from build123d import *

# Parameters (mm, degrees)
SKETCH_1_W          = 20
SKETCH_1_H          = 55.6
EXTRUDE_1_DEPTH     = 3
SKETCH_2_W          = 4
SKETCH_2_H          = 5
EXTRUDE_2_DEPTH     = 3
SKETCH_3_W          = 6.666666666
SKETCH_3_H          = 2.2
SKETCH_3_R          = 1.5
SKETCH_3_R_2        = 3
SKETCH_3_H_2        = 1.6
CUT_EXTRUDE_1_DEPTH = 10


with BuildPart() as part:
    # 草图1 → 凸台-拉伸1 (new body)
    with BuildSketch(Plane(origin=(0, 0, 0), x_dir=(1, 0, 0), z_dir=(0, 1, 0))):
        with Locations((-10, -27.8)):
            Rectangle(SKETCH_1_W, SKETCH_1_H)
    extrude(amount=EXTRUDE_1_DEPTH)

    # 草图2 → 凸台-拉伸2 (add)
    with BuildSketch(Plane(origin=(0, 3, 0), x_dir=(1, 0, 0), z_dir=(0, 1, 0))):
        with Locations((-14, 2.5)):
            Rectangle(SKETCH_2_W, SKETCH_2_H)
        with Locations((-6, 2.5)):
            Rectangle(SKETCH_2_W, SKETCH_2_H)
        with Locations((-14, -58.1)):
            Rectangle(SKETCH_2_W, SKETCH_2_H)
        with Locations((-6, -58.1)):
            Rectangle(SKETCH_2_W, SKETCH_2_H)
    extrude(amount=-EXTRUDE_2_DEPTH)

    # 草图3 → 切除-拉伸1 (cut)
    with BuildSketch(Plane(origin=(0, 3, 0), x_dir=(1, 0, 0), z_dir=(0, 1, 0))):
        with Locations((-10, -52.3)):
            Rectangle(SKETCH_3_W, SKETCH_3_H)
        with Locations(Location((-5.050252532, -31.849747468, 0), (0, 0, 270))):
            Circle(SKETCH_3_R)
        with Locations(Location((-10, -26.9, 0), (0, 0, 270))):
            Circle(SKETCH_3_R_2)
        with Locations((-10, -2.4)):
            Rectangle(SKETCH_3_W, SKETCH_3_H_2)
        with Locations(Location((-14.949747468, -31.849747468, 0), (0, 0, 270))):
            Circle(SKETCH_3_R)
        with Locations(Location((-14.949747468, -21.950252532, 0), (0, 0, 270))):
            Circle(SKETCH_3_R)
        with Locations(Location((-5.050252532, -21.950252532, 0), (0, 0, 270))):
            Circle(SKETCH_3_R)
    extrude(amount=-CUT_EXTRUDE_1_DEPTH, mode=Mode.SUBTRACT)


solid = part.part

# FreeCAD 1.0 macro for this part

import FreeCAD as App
import Part
import Sketcher


def add_polygon(sketch, points):
    """Adds a closed chain of lines whose ends are joined by coincident constraints."""
    first, n = sketch.GeometryCount, len(points)
    for a, b in zip(points, points[1:] + points[:1]):
        sketch.addGeometry(Part.LineSegment(App.Vector(*a, 0), App.Vector(*b, 0)), False)
    for i in range(n):
        sketch.addConstraint(Sketcher.Constraint("Coincident", first + i, 2, first + (i + 1) % n, 1))

doc = App.newDocument("Part")
body = doc.addObject("PartDesign::Body", "Body")

# Sketch on XZ plane
sketch1 = doc.addObject("Sketcher::SketchObject", "Sketch")
body.addObject(sketch1)
sketch1.AttachmentSupport = (doc.XZ_Plane, [""])
sketch1.MapMode = "FlatFace"
add_polygon(sketch1, [(-20, 0), (-20, 56), (0, 56), (0, 0)])  # lines 0-3
sketch1.addConstraint(Sketcher.Constraint("Vertical", 0))
sketch1.addConstraint(Sketcher.Constraint("Horizontal", 1))
sketch1.addConstraint(Sketcher.Constraint("Vertical", 2))
sketch1.addConstraint(Sketcher.Constraint("Horizontal", 3))
sketch1.addConstraint(Sketcher.Constraint("Coincident", 2, 2, -1, 1))
sketch1.addConstraint(Sketcher.Constraint("DistanceX", 1, 1, 1, 2, 20.0))
sketch1.addConstraint(Sketcher.Constraint("DistanceY", 0, 1, 0, 2, 55.6))
pad1 = doc.addObject("PartDesign::Pad", "Pad")
body.addObject(pad1)
pad1.Profile = sketch1
pad1.Length = 3
pad1.Reversed = True

# Sketch on XZ plane
sketch2 = doc.addObject("Sketcher::SketchObject", "Sketch001")
body.addObject(sketch2)
sketch2.AttachmentSupport = (doc.XZ_Plane, [""])
sketch2.MapMode = "FlatFace"
sketch2.AttachmentOffset = App.Placement(App.Vector(0, 0, -3), App.Rotation())
add_polygon(sketch2, [(-16, -5), (-16, 0), (-12, 0), (-12, -5)])  # lines 0-3
add_polygon(sketch2, [(-8, -5), (-8, 0), (-4, 0), (-4, -5)])  # lines 4-7
add_polygon(sketch2, [(-16, 55.6), (-16, 60.6), (-12, 60.6), (-12, 55.6)])  # lines 8-11
add_polygon(sketch2, [(-8, 55.6), (-8, 60.6), (-4, 60.6), (-4, 55.6)])  # lines 12-15
sketch2.addConstraint(Sketcher.Constraint("Vertical", 0))
sketch2.addConstraint(Sketcher.Constraint("Horizontal", 1))
sketch2.addConstraint(Sketcher.Constraint("Vertical", 2))
sketch2.addConstraint(Sketcher.Constraint("Horizontal", 3))
sketch2.addConstraint(Sketcher.Constraint("Vertical", 4))
sketch2.addConstraint(Sketcher.Constraint("Horizontal", 5))
sketch2.addConstraint(Sketcher.Constraint("Vertical", 6))
sketch2.addConstraint(Sketcher.Constraint("Horizontal", 7))
sketch2.addConstraint(Sketcher.Constraint("Vertical", 8))
sketch2.addConstraint(Sketcher.Constraint("Horizontal", 9))
sketch2.addConstraint(Sketcher.Constraint("Vertical", 10))
sketch2.addConstraint(Sketcher.Constraint("Horizontal", 11))
sketch2.addConstraint(Sketcher.Constraint("Vertical", 12))
sketch2.addConstraint(Sketcher.Constraint("Horizontal", 13))
sketch2.addConstraint(Sketcher.Constraint("Vertical", 14))
sketch2.addConstraint(Sketcher.Constraint("Horizontal", 15))
sketch2.addConstraint(Sketcher.Constraint("PointOnObject", 0, 2, -1))
sketch2.addConstraint(Sketcher.Constraint("PointOnObject", 4, 2, -1))
sketch2.addConstraint(Sketcher.Constraint("Horizontal", 3, 2, 6, 2))
sketch2.addConstraint(Sketcher.Constraint("Horizontal", 9, 2, 12, 2))
sketch2.addConstraint(Sketcher.Constraint("Horizontal", 11, 2, 14, 2))
sketch2.addConstraint(Sketcher.Constraint("Vertical", 3, 2, 8, 2))
sketch2.addConstraint(Sketcher.Constraint("Vertical", 2, 2, 9, 2))
sketch2.addConstraint(Sketcher.Constraint("Vertical", 7, 2, 12, 2))
sketch2.addConstraint(Sketcher.Constraint("Vertical", 6, 2, 13, 2))
sketch2.addConstraint(Sketcher.Constraint("Equal", 3, 5))
sketch2.addConstraint(Sketcher.Constraint("Equal", 6, 8))
sketch2.addConstraint(Sketcher.Constraint("DistanceX", 1, 1, 1, 2, 4.0))
sketch2.addConstraint(Sketcher.Constraint("DistanceY", 0, 1, 0, 2, 5.0))
sketch2.addConstraint(Sketcher.Constraint("DistanceX", 0, 2, -1, 1, 16.0))
sketch2.addConstraint(Sketcher.Constraint("DistanceX", 4, 2, -1, 1, 8.0))
sketch2.addConstraint(Sketcher.Constraint("DistanceY", -1, 1, 8, 2, 60.6))
pad2 = doc.addObject("PartDesign::Pad", "Pad001")
body.addObject(pad2)
pad2.Profile = sketch2
pad2.Length = 3

# Sketch on XZ plane
sketch3 = doc.addObject("Sketcher::SketchObject", "Sketch002")
body.addObject(sketch3)
sketch3.AttachmentSupport = (doc.XZ_Plane, [""])
sketch3.MapMode = "FlatFace"
sketch3.AttachmentOffset = App.Placement(App.Vector(0, 0, -3), App.Rotation())
add_polygon(sketch3, [(-13.3, 51.2), (-13.3, 53.4), (-6.7, 53.4), (-6.7, 51.2)])  # lines 0-3
sketch3.addGeometry(Part.Circle(App.Vector(-5.1, 31.8, 0), App.Vector(0, 0, 1), 1.5), False)  # 4
sketch3.addGeometry(Part.Circle(App.Vector(-10, 26.9, 0), App.Vector(0, 0, 1), 3), False)  # 5
add_polygon(sketch3, [(-13.3, 1.6), (-13.3, 3.2), (-6.7, 3.2), (-6.7, 1.6)])  # lines 6-9
sketch3.addGeometry(Part.Circle(App.Vector(-14.9, 31.8, 0), App.Vector(0, 0, 1), 1.5), False)  # 10
sketch3.addGeometry(Part.Circle(App.Vector(-14.9, 22, 0), App.Vector(0, 0, 1), 1.5), False)  # 11
sketch3.addGeometry(Part.Circle(App.Vector(-5.1, 22, 0), App.Vector(0, 0, 1), 1.5), False)  # 12
sketch3.addConstraint(Sketcher.Constraint("Vertical", 0))
sketch3.addConstraint(Sketcher.Constraint("Horizontal", 1))
sketch3.addConstraint(Sketcher.Constraint("Vertical", 2))
sketch3.addConstraint(Sketcher.Constraint("Horizontal", 3))
sketch3.addConstraint(Sketcher.Constraint("Vertical", 6))
sketch3.addConstraint(Sketcher.Constraint("Horizontal", 7))
sketch3.addConstraint(Sketcher.Constraint("Vertical", 8))
sketch3.addConstraint(Sketcher.Constraint("Horizontal", 9))
sketch3.addConstraint(Sketcher.Constraint("Equal", 4, 10))
sketch3.addConstraint(Sketcher.Constraint("Equal", 10, 11))
sketch3.addConstraint(Sketcher.Constraint("Equal", 11, 12))
sketch3.addConstraint(Sketcher.Constraint("Horizontal", 4, 3, 10, 3))
sketch3.addConstraint(Sketcher.Constraint("Horizontal", 11, 3, 12, 3))
sketch3.addConstraint(Sketcher.Constraint("Vertical", 10, 3, 11, 3))
sketch3.addConstraint(Sketcher.Constraint("Vertical", 4, 3, 12, 3))
sketch3.addConstraint(Sketcher.Constraint("Vertical", 3, 2, 6, 2))
sketch3.addConstraint(Sketcher.Constraint("Vertical", 2, 2, 7, 2))
sketch3.addConstraint(Sketcher.Constraint("Diameter", 4, 3.0))
sketch3.addConstraint(Sketcher.Constraint("Diameter", 5, 6.0))
sketch3.addConstraint(Sketcher.Constraint("DistanceY", 0, 1, 0, 2, 2.2))
sketch3.addConstraint(Sketcher.Constraint("DistanceY", 6, 1, 6, 2, 1.6))
sketch3.addConstraint(Sketcher.Constraint("DistanceX", 5, 3, -1, 1, 10.0))
sketch3.addConstraint(Sketcher.Constraint("DistanceY", -1, 1, 5, 3, 26.9))
sketch3.addConstraint(Sketcher.Constraint("DistanceY", -1, 1, 0, 2, 53.4))
sketch3.addConstraint(Sketcher.Constraint("DistanceY", -1, 1, 6, 2, 3.2))
sketch3.addConstraint(Sketcher.Constraint("DistanceX", 1, 1, 1, 2, 6.666667))
sketch3.addConstraint(Sketcher.Constraint("DistanceX", 0, 2, 4, 3, 8.283081))
sketch3.addConstraint(Sketcher.Constraint("DistanceX", 10, 3, 1, 2, 8.283081))
sketch3.addConstraint(Sketcher.Constraint("DistanceX", 4, 3, -1, 1, 5.050253))
sketch3.addConstraint(Sketcher.Constraint("DistanceY", -1, 1, 4, 3, 31.849747))
sketch3.addConstraint(Sketcher.Constraint("DistanceY", -1, 1, 11, 3, 21.950253))
pocket1 = doc.addObject("PartDesign::Pocket", "Pocket")
body.addObject(pocket1)
pocket1.Profile = sketch3
pocket1.Length = 10
pocket1.Reversed = True

doc.recompute()
